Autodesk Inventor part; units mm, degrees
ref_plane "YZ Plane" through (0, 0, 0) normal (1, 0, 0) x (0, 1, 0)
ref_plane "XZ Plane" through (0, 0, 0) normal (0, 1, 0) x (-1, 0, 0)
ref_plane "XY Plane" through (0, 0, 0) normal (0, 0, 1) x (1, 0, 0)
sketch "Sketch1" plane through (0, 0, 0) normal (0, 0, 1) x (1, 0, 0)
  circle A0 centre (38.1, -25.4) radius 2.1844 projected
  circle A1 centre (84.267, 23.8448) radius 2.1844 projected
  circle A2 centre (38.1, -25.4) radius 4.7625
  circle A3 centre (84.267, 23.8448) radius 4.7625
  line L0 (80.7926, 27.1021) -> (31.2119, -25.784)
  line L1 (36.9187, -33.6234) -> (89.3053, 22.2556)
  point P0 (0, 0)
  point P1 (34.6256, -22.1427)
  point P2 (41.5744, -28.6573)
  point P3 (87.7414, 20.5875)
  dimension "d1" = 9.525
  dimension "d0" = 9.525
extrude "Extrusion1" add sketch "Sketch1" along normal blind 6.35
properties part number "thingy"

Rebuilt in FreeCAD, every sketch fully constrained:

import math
import FreeCAD as App
import Part
import Sketcher
Q = App.Units.Quantity

doc = App.newDocument("Part")
body = doc.addObject("PartDesign::Body", "Body")

# Sketch on XY plane
sketch1 = body.newObject("Sketcher::SketchObject", "Sketch")
sketch1.AttachmentSupport = (doc.getObject("XY_Plane"), [""])
sketch1.MapMode = "FlatFace"
sketch1.addGeometry([
    Part.ArcOfCircle(Part.Circle(App.Vector(38.1, -25.4, 0), App.Vector(0, 0, 1), 4.7625), math.radians(136.847621), math.radians(316.84759)),  # 0
    Part.LineSegment(App.Vector(41.574436, -28.657286, 0), App.Vector(87.741453, 20.587498, 0)),  # 1
    Part.ArcOfCircle(Part.Circle(App.Vector(84.267, 23.8448, 0), App.Vector(0, 0, 1), 4.7625), math.radians(-43.15241), math.radians(136.847171)),  # 2
    Part.LineSegment(App.Vector(80.7926, 27.1021, 0), App.Vector(34.625584, -22.142736, 0)),  # 3
    Part.Circle(App.Vector(38.1, -25.4, 0), App.Vector(0, 0, 1), 2.1844),  # 4
    Part.Circle(App.Vector(84.267, 23.8448, 0), App.Vector(0, 0, 1), 2.1844),  # 5
], False)
sketch1.addConstraint([
    Sketcher.Constraint("Tangent", 0, 2, 1, 1),
    Sketcher.Constraint("Tangent", 1, 2, 2, 1),
    Sketcher.Constraint("Tangent", 2, 2, 3, 1),
    Sketcher.Constraint("Tangent", 3, 2, 0, 1),
    Sketcher.Constraint("Coincident", 4, 3, 0, 3),
    Sketcher.Constraint("Coincident", 5, 3, 2, 3),
    Sketcher.Constraint("Equal", 0, 2),
    Sketcher.Constraint("Equal", 4, 5),
    Sketcher.Constraint("Radius", 0, Q("0.1875 in")),
    Sketcher.Constraint("Diameter", 4, Q("0.172 in")),
    Sketcher.Constraint("DistanceY", 0, 3, -1, 1, Q("1 in")),
    Sketcher.Constraint("DistanceX", -1, 1, 0, 3, Q("1.5 in")),
    Sketcher.Constraint("DistanceY", -1, 1, 2, 2, Q("1.067 in")),
    Sketcher.Constraint("DistanceX", -1, 1, 2, 3, Q("3.3176 in")),
])
pad1 = body.newObject("PartDesign::Pad", "Pad")
pad1.Profile = sketch1
pad1.Length = Q("0.25 in")

doc.recompute()
